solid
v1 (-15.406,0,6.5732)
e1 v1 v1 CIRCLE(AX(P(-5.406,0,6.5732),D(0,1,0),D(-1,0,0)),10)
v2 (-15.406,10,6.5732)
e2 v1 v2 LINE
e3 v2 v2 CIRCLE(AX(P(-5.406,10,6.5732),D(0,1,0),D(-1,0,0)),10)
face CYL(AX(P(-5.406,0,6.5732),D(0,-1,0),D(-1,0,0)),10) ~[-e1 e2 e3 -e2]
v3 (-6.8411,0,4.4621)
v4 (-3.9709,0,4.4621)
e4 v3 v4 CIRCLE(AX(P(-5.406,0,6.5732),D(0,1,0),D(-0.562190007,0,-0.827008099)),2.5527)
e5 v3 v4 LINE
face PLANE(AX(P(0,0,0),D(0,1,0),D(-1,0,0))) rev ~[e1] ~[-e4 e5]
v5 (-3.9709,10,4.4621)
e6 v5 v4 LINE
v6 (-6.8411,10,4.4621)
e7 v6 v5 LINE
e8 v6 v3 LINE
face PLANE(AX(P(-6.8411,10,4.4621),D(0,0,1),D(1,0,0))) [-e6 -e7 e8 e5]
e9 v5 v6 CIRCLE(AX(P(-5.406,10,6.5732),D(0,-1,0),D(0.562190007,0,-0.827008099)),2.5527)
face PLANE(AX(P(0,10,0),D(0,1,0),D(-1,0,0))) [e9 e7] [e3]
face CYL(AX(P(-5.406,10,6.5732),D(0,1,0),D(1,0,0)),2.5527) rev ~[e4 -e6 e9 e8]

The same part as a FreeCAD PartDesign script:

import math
import FreeCAD as App
import Part
import Sketcher

V = App.Vector
Q = App.Units.Quantity

doc = App.newDocument("Part")
body = doc.addObject("PartDesign::Body", "Body")

sketch1 = doc.addObject("Sketcher::SketchObject", "Sketch")
body.addObject(sketch1)
sketch1.AttachmentSupport = (doc.XZ_Plane, [""])
sketch1.MapMode = "FlatFace"
sketch1.addGeometry(Part.Circle(V(-5, 7, 0), V(0, 0, 1), 10), False)
sketch1.addConstraint([
    Sketcher.Constraint("Diameter", 0, Q("0.7874 in")),
    Sketcher.Constraint("DistanceX", 0, 3, -1, 1, Q("5.406 mm")),
    Sketcher.Constraint("DistanceY", -1, 1, 0, 3, Q("6.5732 mm")),
])
pad1 = doc.addObject("PartDesign::Pad", "Pad")
body.addObject(pad1)
pad1.Profile = sketch1
pad1.Length = Q("0.3937008 in")
pad1.Reversed = True

sketch2 = doc.addObject("Sketcher::SketchObject", "Sketch001")
body.addObject(sketch2)
sketch2.AttachmentSupport = (doc.XZ_Plane, [""])
sketch2.MapMode = "FlatFace"
sketch2.AttachmentOffset = App.Placement(V(0, 0, -0.3937008 * 25.4), App.Rotation())
sketch2.addGeometry([
    Part.ArcOfCircle(Part.Circle(V(-5.4, 6.6, 0), V(0, 0, 1), 2.6), math.radians(-56), math.radians(236)),
    Part.LineSegment(V(-6.8, 4.5, 0), V(-4, 4.5, 0)),
], False)
sketch2.addConstraint([
    Sketcher.Constraint("Coincident", 0, 1, 1, 2),
    Sketcher.Constraint("Coincident", 1, 1, 0, 2),
    Sketcher.Constraint("Horizontal", 1),
    Sketcher.Constraint("Radius", 0, Q("0.1005 in")),
    Sketcher.Constraint("DistanceX", 1, 1, 1, 2, Q("0.113 in")),
    Sketcher.Constraint("DistanceX", 0, 3, -1, 1, Q("5.406 mm")),
    Sketcher.Constraint("DistanceY", -1, 1, 0, 3, Q("6.5732 mm")),
])
pocket1 = doc.addObject("PartDesign::Pocket", "Pocket")
body.addObject(pocket1)
pocket1.Profile = sketch2
pocket1.Length = Q("1.9685039 in")
pocket1.Reversed = True

doc.recompute()
